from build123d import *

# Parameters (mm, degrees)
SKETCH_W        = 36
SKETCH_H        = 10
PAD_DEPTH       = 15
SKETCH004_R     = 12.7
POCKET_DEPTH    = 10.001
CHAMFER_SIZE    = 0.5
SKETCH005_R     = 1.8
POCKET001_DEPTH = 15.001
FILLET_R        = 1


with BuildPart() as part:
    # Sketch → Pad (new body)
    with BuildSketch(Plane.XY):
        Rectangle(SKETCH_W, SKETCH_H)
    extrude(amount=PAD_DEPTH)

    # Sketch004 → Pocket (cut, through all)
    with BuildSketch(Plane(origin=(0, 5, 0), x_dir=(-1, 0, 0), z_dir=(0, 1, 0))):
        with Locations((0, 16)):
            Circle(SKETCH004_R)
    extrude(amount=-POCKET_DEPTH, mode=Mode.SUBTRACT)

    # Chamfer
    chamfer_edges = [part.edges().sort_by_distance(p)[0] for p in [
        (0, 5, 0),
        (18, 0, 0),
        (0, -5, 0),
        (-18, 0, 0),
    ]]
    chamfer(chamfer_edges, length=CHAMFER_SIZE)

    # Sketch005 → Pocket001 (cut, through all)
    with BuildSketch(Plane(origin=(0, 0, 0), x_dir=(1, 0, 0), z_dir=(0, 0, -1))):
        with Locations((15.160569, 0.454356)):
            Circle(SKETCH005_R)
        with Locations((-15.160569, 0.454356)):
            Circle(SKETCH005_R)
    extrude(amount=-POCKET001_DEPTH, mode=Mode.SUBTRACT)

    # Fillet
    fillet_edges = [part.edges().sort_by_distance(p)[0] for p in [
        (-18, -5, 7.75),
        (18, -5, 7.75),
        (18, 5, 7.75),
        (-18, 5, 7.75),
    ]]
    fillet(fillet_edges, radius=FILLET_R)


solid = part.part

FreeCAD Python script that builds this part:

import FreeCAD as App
import Part
import Sketcher

V = App.Vector


def edges_at(feature, points):
    """Names of the edges that pass closest to the given points."""
    edges = feature.Shape.Edges
    near = lambda p: min(range(len(edges)), key=lambda i: edges[i].distToShape(Part.Vertex(*p))[0])
    return sorted({f"Edge{near(p) + 1}" for p in points})


def add_polygon(sketch, points):
    """Adds a closed chain of lines whose ends are joined by coincident constraints."""
    first, n = sketch.GeometryCount, len(points)
    for a, b in zip(points, points[1:] + points[:1]):
        sketch.addGeometry(Part.LineSegment(App.Vector(*a, 0), App.Vector(*b, 0)), False)
    for i in range(n):
        sketch.addConstraint(Sketcher.Constraint("Coincident", first + i, 2, first + (i + 1) % n, 1))

doc = App.newDocument("Part")
body = doc.addObject("PartDesign::Body", "Body")

# Sketch on XY plane
sketch1 = body.newObject("Sketcher::SketchObject", "Sketch")
sketch1.AttachmentSupport = (doc.getObject("XY_Plane"), [""])
sketch1.MapMode = "FlatFace"
add_polygon(sketch1, [(-18, 5), (-18, -5), (18, -5), (18, 5)])  # lines 0-3
sketch1.addConstraint([
    Sketcher.Constraint("Vertical", 0),
    Sketcher.Constraint("Horizontal", 1),
    Sketcher.Constraint("Vertical", 2),
    Sketcher.Constraint("Horizontal", 3),
    Sketcher.Constraint("Symmetric", 0, 2, 2, 2, -1, 1),
    Sketcher.Constraint("DistanceX", 1, 1, 1, 2, 36.0),
    Sketcher.Constraint("DistanceY", 0, 2, 0, 1, 10.0),
])
pad1 = body.newObject("PartDesign::Pad", "Pad")
pad1.Profile = sketch1
pad1.Length = 15

# Sketch on XZ plane
sketch2 = body.newObject("Sketcher::SketchObject", "Sketch001")
sketch2.AttachmentSupport = (doc.getObject("XZ_Plane"), [""])
sketch2.MapMode = "FlatFace"
sketch2.AttachmentOffset = App.Placement(V(0, 0, -5), App.Rotation())
sketch2.addGeometry(Part.Circle(V(0, 16, 0), V(0, 0, 1), 13), False)
sketch2.addConstraint([
    Sketcher.Constraint("PointOnObject", 0, 3, -2),
    Sketcher.Constraint("Diameter", 0, 25.4),
    Sketcher.Constraint("DistanceY", -1, 1, 0, 3, 16.0),
])
pocket1 = body.newObject("PartDesign::Pocket", "Pocket")
pocket1.Profile = sketch2
pocket1.Type = "ThroughAll"
pocket1.Reversed = True
doc.recompute()

chamfer = body.newObject("PartDesign::Chamfer", "Chamfer")
chamfer.Base = (pocket1, edges_at(pocket1, [
    (0, 5, 0),
    (18, 0, 0),
    (0, -5, 0),
    (-18, 0, 0),
]))
chamfer.Size = 0.5

# Sketch on XY plane
sketch3 = body.newObject("Sketcher::SketchObject", "Sketch002")
sketch3.AttachmentSupport = (doc.getObject("XY_Plane"), [""])
sketch3.MapMode = "FlatFace"
sketch3.addGeometry([
    Part.Circle(V(15.2, -0.5, 0), V(0, 0, 1), 1.8),
    Part.Circle(V(-15.2, -0.5, 0), V(0, 0, 1), 1.8),
], False)
sketch3.addConstraint([
    Sketcher.Constraint("Equal", 0, 1),
    Sketcher.Constraint("Symmetric", 0, 3, 1, 3, -2),
    Sketcher.Constraint("Diameter", 0, 3.6),
    Sketcher.Constraint("DistanceX", -1, 1, 0, 3, 15.160569),
    Sketcher.Constraint("DistanceY", 0, 3, -1, 1, 0.454356),
])
pocket2 = body.newObject("PartDesign::Pocket", "Pocket001")
pocket2.Profile = sketch3
pocket2.Type = "ThroughAll"
pocket2.Reversed = True
doc.recompute()

fillet = body.newObject("PartDesign::Fillet", "Fillet")
fillet.Base = (pocket2, edges_at(pocket2, [
    (-18, -5, 7.75),
    (18, -5, 7.75),
    (18, 5, 7.75),
    (-18, 5, 7.75),
]))
fillet.Radius = 1

doc.recompute()
